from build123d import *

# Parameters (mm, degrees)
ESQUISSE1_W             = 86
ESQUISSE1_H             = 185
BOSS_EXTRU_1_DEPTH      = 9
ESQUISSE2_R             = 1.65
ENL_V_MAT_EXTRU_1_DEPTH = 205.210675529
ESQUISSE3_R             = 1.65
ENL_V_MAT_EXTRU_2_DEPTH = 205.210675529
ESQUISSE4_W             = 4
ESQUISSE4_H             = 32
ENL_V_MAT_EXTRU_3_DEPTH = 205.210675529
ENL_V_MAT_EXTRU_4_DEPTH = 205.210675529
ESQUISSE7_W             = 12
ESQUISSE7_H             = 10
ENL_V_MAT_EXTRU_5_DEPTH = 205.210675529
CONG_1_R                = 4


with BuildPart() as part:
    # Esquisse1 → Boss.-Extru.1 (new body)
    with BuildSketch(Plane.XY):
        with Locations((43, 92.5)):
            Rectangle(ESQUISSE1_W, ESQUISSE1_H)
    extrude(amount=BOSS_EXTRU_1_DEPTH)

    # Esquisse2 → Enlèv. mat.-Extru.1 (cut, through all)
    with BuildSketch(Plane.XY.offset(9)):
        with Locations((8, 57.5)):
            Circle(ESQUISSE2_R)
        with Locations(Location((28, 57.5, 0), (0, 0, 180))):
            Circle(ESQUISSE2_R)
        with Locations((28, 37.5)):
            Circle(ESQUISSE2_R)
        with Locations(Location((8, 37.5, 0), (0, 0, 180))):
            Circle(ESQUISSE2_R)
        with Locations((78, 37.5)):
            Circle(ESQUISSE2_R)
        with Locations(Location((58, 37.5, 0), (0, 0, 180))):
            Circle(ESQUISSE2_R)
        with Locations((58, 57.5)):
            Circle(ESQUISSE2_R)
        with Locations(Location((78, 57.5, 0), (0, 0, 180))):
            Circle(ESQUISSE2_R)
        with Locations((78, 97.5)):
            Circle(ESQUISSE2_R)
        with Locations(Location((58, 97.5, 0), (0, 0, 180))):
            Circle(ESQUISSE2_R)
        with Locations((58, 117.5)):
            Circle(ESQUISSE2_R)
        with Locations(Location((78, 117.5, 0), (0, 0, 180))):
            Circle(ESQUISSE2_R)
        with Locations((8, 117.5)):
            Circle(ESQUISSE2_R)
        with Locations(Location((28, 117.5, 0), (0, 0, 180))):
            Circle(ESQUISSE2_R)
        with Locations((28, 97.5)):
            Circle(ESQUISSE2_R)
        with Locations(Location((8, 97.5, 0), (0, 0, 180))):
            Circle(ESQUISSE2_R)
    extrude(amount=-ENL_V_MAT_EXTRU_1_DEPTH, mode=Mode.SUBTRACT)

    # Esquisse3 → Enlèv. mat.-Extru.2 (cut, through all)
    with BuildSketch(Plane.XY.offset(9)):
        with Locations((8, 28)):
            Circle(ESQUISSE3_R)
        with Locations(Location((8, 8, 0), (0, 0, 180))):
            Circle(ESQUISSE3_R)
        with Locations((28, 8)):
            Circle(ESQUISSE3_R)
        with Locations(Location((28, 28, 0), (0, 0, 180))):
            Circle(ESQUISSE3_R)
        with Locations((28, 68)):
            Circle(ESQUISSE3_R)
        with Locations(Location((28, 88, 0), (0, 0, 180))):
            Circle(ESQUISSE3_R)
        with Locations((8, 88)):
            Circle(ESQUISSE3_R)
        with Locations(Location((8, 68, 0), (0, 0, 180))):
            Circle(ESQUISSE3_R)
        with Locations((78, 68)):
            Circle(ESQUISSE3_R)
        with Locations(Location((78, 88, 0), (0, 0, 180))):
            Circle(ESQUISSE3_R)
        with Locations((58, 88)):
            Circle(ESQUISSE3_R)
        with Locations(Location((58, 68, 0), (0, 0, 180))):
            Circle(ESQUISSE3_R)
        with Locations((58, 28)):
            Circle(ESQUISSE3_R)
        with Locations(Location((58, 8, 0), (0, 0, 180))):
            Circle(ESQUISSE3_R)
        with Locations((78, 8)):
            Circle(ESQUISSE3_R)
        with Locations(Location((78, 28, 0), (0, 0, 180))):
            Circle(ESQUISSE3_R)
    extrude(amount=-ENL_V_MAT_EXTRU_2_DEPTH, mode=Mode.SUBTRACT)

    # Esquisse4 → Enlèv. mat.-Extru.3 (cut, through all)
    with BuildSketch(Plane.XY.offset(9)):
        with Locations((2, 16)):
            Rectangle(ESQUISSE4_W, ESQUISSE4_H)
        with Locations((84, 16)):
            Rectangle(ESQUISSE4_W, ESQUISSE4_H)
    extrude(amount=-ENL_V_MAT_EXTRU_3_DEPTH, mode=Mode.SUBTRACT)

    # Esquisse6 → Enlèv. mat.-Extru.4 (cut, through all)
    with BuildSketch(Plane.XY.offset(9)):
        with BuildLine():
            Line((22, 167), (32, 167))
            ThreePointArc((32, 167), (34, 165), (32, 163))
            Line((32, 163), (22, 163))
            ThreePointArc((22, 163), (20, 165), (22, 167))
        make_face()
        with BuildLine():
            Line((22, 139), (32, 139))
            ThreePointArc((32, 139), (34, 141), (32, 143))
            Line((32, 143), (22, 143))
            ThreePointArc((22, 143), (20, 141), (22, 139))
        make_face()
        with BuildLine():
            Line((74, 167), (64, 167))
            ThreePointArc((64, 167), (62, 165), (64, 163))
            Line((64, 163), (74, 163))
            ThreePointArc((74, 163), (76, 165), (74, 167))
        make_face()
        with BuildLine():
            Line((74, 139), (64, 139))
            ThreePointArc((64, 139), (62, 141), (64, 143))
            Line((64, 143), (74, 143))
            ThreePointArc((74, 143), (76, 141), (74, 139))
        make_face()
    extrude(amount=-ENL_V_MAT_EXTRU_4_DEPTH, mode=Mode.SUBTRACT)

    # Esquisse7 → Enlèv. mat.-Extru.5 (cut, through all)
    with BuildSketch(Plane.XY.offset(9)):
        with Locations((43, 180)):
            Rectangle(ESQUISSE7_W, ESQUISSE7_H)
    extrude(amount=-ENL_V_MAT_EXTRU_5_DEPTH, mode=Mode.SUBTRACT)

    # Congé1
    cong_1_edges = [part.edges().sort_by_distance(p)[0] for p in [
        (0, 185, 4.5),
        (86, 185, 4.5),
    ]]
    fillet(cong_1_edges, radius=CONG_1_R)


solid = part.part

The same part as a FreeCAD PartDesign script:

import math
import FreeCAD as App
import Part
import Sketcher
Q = App.Units.Quantity


def edges_at(feature, points):
    """Names of the edges that pass closest to the given points."""
    edges = feature.Shape.Edges
    near = lambda p: min(range(len(edges)), key=lambda i: edges[i].distToShape(Part.Vertex(*p))[0])
    return sorted({f"Edge{near(p) + 1}" for p in points})


def add_polygon(sketch, points):
    """Adds a closed chain of lines whose ends are joined by coincident constraints."""
    first, n = sketch.GeometryCount, len(points)
    for a, b in zip(points, points[1:] + points[:1]):
        sketch.addGeometry(Part.LineSegment(App.Vector(*a, 0), App.Vector(*b, 0)), False)
    for i in range(n):
        sketch.addConstraint(Sketcher.Constraint("Coincident", first + i, 2, first + (i + 1) % n, 1))

doc = App.newDocument("Part")
body = doc.addObject("PartDesign::Body", "Body")

# Sketch on XY plane
sketch1 = body.newObject("Sketcher::SketchObject", "Sketch")
sketch1.AttachmentSupport = (doc.getObject("XY_Plane"), [""])
sketch1.MapMode = "FlatFace"
add_polygon(sketch1, [(0, 185), (0, 0), (86, 0), (86, 185)])  # lines 0-3
sketch1.addConstraint([
    Sketcher.Constraint("Vertical", 0),
    Sketcher.Constraint("Horizontal", 1),
    Sketcher.Constraint("Vertical", 2),
    Sketcher.Constraint("Horizontal", 3),
    Sketcher.Constraint("Coincident", 0, 2, -1, 1),
    Sketcher.Constraint("DistanceX", 1, 1, 1, 2, Q("86 mm")),
    Sketcher.Constraint("DistanceY", 0, 2, 0, 1, Q("185 mm")),
])
pad1 = body.newObject("PartDesign::Pad", "Pad")
pad1.Profile = sketch1
pad1.Length = 9

# Sketch on XY plane
sketch2 = body.newObject("Sketcher::SketchObject", "Sketch001")
sketch2.AttachmentSupport = (doc.getObject("XY_Plane"), [""])
sketch2.MapMode = "FlatFace"
sketch2.AttachmentOffset = App.Placement(App.Vector(0, 0, 9), App.Rotation())
sketch2.addGeometry([
    Part.Circle(App.Vector(8, 57.5, 0), App.Vector(0, 0, 1), 1.6),  # 0
    Part.Circle(App.Vector(28, 57.5, 0), App.Vector(0, 0, 1), 1.6),  # 1
    Part.Circle(App.Vector(28, 37.5, 0), App.Vector(0, 0, 1), 1.6),  # 2
    Part.Circle(App.Vector(8, 37.5, 0), App.Vector(0, 0, 1), 1.6),  # 3
    Part.Circle(App.Vector(78, 37.5, 0), App.Vector(0, 0, 1), 1.6),  # 4
    Part.Circle(App.Vector(58, 37.5, 0), App.Vector(0, 0, 1), 1.6),  # 5
    Part.Circle(App.Vector(58, 57.5, 0), App.Vector(0, 0, 1), 1.6),  # 6
    Part.Circle(App.Vector(78, 57.5, 0), App.Vector(0, 0, 1), 1.6),  # 7
    Part.Circle(App.Vector(78, 97.5, 0), App.Vector(0, 0, 1), 1.6),  # 8
    Part.Circle(App.Vector(58, 97.5, 0), App.Vector(0, 0, 1), 1.6),  # 9
    Part.Circle(App.Vector(58, 117.5, 0), App.Vector(0, 0, 1), 1.6),  # 10
    Part.Circle(App.Vector(78, 117.5, 0), App.Vector(0, 0, 1), 1.6),  # 11
    Part.Circle(App.Vector(8, 117.5, 0), App.Vector(0, 0, 1), 1.6),  # 12
    Part.Circle(App.Vector(28, 117.5, 0), App.Vector(0, 0, 1), 1.6),  # 13
    Part.Circle(App.Vector(28, 97.5, 0), App.Vector(0, 0, 1), 1.6),  # 14
    Part.Circle(App.Vector(8, 97.5, 0), App.Vector(0, 0, 1), 1.6),  # 15
], False)
sketch2.addConstraint([
    Sketcher.Constraint("Equal", 0, 1),
    Sketcher.Constraint("Equal", 1, 2),
    Sketcher.Constraint("Equal", 2, 3),
    Sketcher.Constraint("Equal", 3, 4),
    Sketcher.Constraint("Equal", 4, 5),
    Sketcher.Constraint("Equal", 5, 6),
    Sketcher.Constraint("Equal", 6, 7),
    Sketcher.Constraint("Equal", 7, 8),
    Sketcher.Constraint("Equal", 8, 9),
    Sketcher.Constraint("Equal", 9, 10),
    Sketcher.Constraint("Equal", 10, 11),
    Sketcher.Constraint("Equal", 11, 12),
    Sketcher.Constraint("Equal", 12, 13),
    Sketcher.Constraint("Equal", 13, 14),
    Sketcher.Constraint("Equal", 14, 15),
    Sketcher.Constraint("Horizontal", 0, 3, 1, 3),
    Sketcher.Constraint("Horizontal", 2, 3, 3, 3),
    Sketcher.Constraint("Horizontal", 3, 3, 4, 3),
    Sketcher.Constraint("Horizontal", 4, 3, 5, 3),
    Sketcher.Constraint("Horizontal", 1, 3, 6, 3),
    Sketcher.Constraint("Horizontal", 6, 3, 7, 3),
    Sketcher.Constraint("Horizontal", 8, 3, 9, 3),
    Sketcher.Constraint("Horizontal", 10, 3, 11, 3),
    Sketcher.Constraint("Horizontal", 11, 3, 12, 3),
    Sketcher.Constraint("Horizontal", 12, 3, 13, 3),
    Sketcher.Constraint("Horizontal", 9, 3, 14, 3),
    Sketcher.Constraint("Horizontal", 14, 3, 15, 3),
    Sketcher.Constraint("Vertical", 1, 3, 2, 3),
    Sketcher.Constraint("Vertical", 0, 3, 3, 3),
    Sketcher.Constraint("Vertical", 5, 3, 6, 3),
    Sketcher.Constraint("Vertical", 4, 3, 7, 3),
    Sketcher.Constraint("Vertical", 7, 3, 8, 3),
    Sketcher.Constraint("Vertical", 6, 3, 9, 3),
    Sketcher.Constraint("Vertical", 9, 3, 10, 3),
    Sketcher.Constraint("Vertical", 8, 3, 11, 3),
    Sketcher.Constraint("Vertical", 3, 3, 12, 3),
    Sketcher.Constraint("Vertical", 2, 3, 13, 3),
    Sketcher.Constraint("Vertical", 13, 3, 14, 3),
    Sketcher.Constraint("Vertical", 12, 3, 15, 3),
    Sketcher.Constraint("Diameter", 0, Q("3.3 mm")),
    Sketcher.Constraint("DistanceX", -1, 1, 0, 3, Q("8 mm")),
    Sketcher.Constraint("DistanceX", -1, 1, 1, 3, Q("28 mm")),
    Sketcher.Constraint("DistanceX", -1, 1, 4, 3, Q("78 mm")),
    Sketcher.Constraint("DistanceX", -1, 1, 5, 3, Q("58 mm")),
    Sketcher.Constraint("DistanceY", 2, 3, 1, 3, Q("20 mm")),
    Sketcher.Constraint("DistanceY", 7, 3, 8, 3, Q("40 mm")),
    Sketcher.Constraint("DistanceY", 9, 3, 10, 3, Q("20 mm")),
    Sketcher.Constraint("DistanceY", -1, 1, 0, 3, Q("57.5 mm")),
])
pocket1 = body.newObject("PartDesign::Pocket", "Pocket")
pocket1.Profile = sketch2
pocket1.Type = "ThroughAll"

# Sketch on XY plane
sketch3 = body.newObject("Sketcher::SketchObject", "Sketch002")
sketch3.AttachmentSupport = (doc.getObject("XY_Plane"), [""])
sketch3.MapMode = "FlatFace"
sketch3.AttachmentOffset = App.Placement(App.Vector(0, 0, 9), App.Rotation())
sketch3.addGeometry([
    Part.Circle(App.Vector(8, 28, 0), App.Vector(0, 0, 1), 1.6),  # 0
    Part.Circle(App.Vector(8, 8, 0), App.Vector(0, 0, 1), 1.6),  # 1
    Part.Circle(App.Vector(28, 8, 0), App.Vector(0, 0, 1), 1.6),  # 2
    Part.Circle(App.Vector(28, 28, 0), App.Vector(0, 0, 1), 1.6),  # 3
    Part.Circle(App.Vector(28, 68, 0), App.Vector(0, 0, 1), 1.6),  # 4
    Part.Circle(App.Vector(28, 88, 0), App.Vector(0, 0, 1), 1.6),  # 5
    Part.Circle(App.Vector(8, 88, 0), App.Vector(0, 0, 1), 1.6),  # 6
    Part.Circle(App.Vector(8, 68, 0), App.Vector(0, 0, 1), 1.6),  # 7
    Part.Circle(App.Vector(78, 68, 0), App.Vector(0, 0, 1), 1.6),  # 8
    Part.Circle(App.Vector(78, 88, 0), App.Vector(0, 0, 1), 1.6),  # 9
    Part.Circle(App.Vector(58, 88, 0), App.Vector(0, 0, 1), 1.6),  # 10
    Part.Circle(App.Vector(58, 68, 0), App.Vector(0, 0, 1), 1.6),  # 11
    Part.Circle(App.Vector(58, 28, 0), App.Vector(0, 0, 1), 1.6),  # 12
    Part.Circle(App.Vector(58, 8, 0), App.Vector(0, 0, 1), 1.6),  # 13
    Part.Circle(App.Vector(78, 8, 0), App.Vector(0, 0, 1), 1.6),  # 14
    Part.Circle(App.Vector(78, 28, 0), App.Vector(0, 0, 1), 1.6),  # 15
], False)
sketch3.addConstraint([
    Sketcher.Constraint("Equal", 0, 1),
    Sketcher.Constraint("Equal", 1, 2),
    Sketcher.Constraint("Equal", 2, 3),
    Sketcher.Constraint("Equal", 3, 4),
    Sketcher.Constraint("Equal", 4, 5),
    Sketcher.Constraint("Equal", 5, 6),
    Sketcher.Constraint("Equal", 6, 7),
    Sketcher.Constraint("Equal", 7, 8),
    Sketcher.Constraint("Equal", 8, 9),
    Sketcher.Constraint("Equal", 9, 10),
    Sketcher.Constraint("Equal", 10, 11),
    Sketcher.Constraint("Equal", 11, 12),
    Sketcher.Constraint("Equal", 12, 13),
    Sketcher.Constraint("Equal", 13, 14),
    Sketcher.Constraint("Equal", 14, 15),
    Sketcher.Constraint("Horizontal", 1, 3, 2, 3),
    Sketcher.Constraint("Horizontal", 0, 3, 3, 3),
    Sketcher.Constraint("Horizontal", 5, 3, 6, 3),
    Sketcher.Constraint("Horizontal", 4, 3, 7, 3),
    Sketcher.Constraint("Horizontal", 7, 3, 8, 3),
    Sketcher.Constraint("Horizontal", 6, 3, 9, 3),
    Sketcher.Constraint("Horizontal", 9, 3, 10, 3),
    Sketcher.Constraint("Horizontal", 8, 3, 11, 3),
    Sketcher.Constraint("Horizontal", 3, 3, 12, 3),
    Sketcher.Constraint("Horizontal", 2, 3, 13, 3),
    Sketcher.Constraint("Horizontal", 13, 3, 14, 3),
    Sketcher.Constraint("Horizontal", 12, 3, 15, 3),
    Sketcher.Constraint("Vertical", 0, 3, 1, 3),
    Sketcher.Constraint("Vertical", 2, 3, 3, 3),
    Sketcher.Constraint("Vertical", 3, 3, 4, 3),
    Sketcher.Constraint("Vertical", 4, 3, 5, 3),
    Sketcher.Constraint("Vertical", 1, 3, 6, 3),
    Sketcher.Constraint("Vertical", 6, 3, 7, 3),
    Sketcher.Constraint("Vertical", 8, 3, 9, 3),
    Sketcher.Constraint("Vertical", 10, 3, 11, 3),
    Sketcher.Constraint("Vertical", 11, 3, 12, 3),
    Sketcher.Constraint("Vertical", 12, 3, 13, 3),
    Sketcher.Constraint("Vertical", 9, 3, 14, 3),
    Sketcher.Constraint("Vertical", 14, 3, 15, 3),
    Sketcher.Constraint("Diameter", 0, Q("3.3 mm")),
    Sketcher.Constraint("DistanceX", -1, 1, 0, 3, Q("8 mm")),
    Sketcher.Constraint("DistanceY", -1, 1, 0, 3, Q("28 mm")),
    Sketcher.Constraint("DistanceY", -1, 1, 1, 3, Q("8 mm")),
    Sketcher.Constraint("DistanceX", -1, 1, 2, 3, Q("28 mm")),
    Sketcher.Constraint("DistanceY", -1, 1, 4, 3, Q("68 mm")),
    Sketcher.Constraint("DistanceY", -1, 1, 5, 3, Q("88 mm")),
    Sketcher.Constraint("DistanceX", -1, 1, 8, 3, Q("78 mm")),
    Sketcher.Constraint("DistanceX", -1, 1, 10, 3, Q("58 mm")),
])
pocket2 = body.newObject("PartDesign::Pocket", "Pocket001")
pocket2.Profile = sketch3
pocket2.Type = "ThroughAll"

# Sketch on XY plane
sketch4 = body.newObject("Sketcher::SketchObject", "Sketch003")
sketch4.AttachmentSupport = (doc.getObject("XY_Plane"), [""])
sketch4.MapMode = "FlatFace"
sketch4.AttachmentOffset = App.Placement(App.Vector(0, 0, 9), App.Rotation())
add_polygon(sketch4, [(0, 32), (0, 0), (4, 0), (4, 32)])  # lines 0-3
add_polygon(sketch4, [(82, 32), (82, 0), (86, 0), (86, 32)])  # lines 4-7
sketch4.addConstraint([
    Sketcher.Constraint("Vertical", 0),
    Sketcher.Constraint("Horizontal", 1),
    Sketcher.Constraint("Vertical", 2),
    Sketcher.Constraint("Horizontal", 3),
    Sketcher.Constraint("Vertical", 4),
    Sketcher.Constraint("Horizontal", 5),
    Sketcher.Constraint("Vertical", 6),
    Sketcher.Constraint("Horizontal", 7),
    Sketcher.Constraint("Coincident", 0, 2, -1, 1),
    Sketcher.Constraint("PointOnObject", 4, 2, -1),
    Sketcher.Constraint("Horizontal", 3, 2, 6, 2),
    Sketcher.Constraint("Equal", 3, 5),
    Sketcher.Constraint("DistanceX", 1, 1, 1, 2, Q("4 mm")),
    Sketcher.Constraint("DistanceY", 0, 2, 0, 1, Q("32 mm")),
    Sketcher.Constraint("DistanceX", -1, 1, 4, 2, Q("82 mm")),
])
pocket3 = body.newObject("PartDesign::Pocket", "Pocket002")
pocket3.Profile = sketch4
pocket3.Type = "ThroughAll"

# Sketch on XY plane
sketch5 = body.newObject("Sketcher::SketchObject", "Sketch004")
sketch5.AttachmentSupport = (doc.getObject("XY_Plane"), [""])
sketch5.MapMode = "FlatFace"
sketch5.AttachmentOffset = App.Placement(App.Vector(0, 0, 9), App.Rotation())
sketch5.addGeometry([
    Part.LineSegment(App.Vector(32, 167, 0), App.Vector(22, 167, 0)),  # 0
    Part.ArcOfCircle(Part.Circle(App.Vector(22, 165, 0), App.Vector(0, 0, 1), 2), math.radians(90), math.radians(270)),  # 1
    Part.LineSegment(App.Vector(22, 163, 0), App.Vector(32, 163, 0)),  # 2
    Part.ArcOfCircle(Part.Circle(App.Vector(32, 165, 0), App.Vector(0, 0, 1), 2), math.radians(-90), math.radians(90)),  # 3
    Part.LineSegment(App.Vector(22, 139, 0), App.Vector(32, 139, 0)),  # 4
    Part.ArcOfCircle(Part.Circle(App.Vector(32, 141, 0), App.Vector(0, 0, 1), 2), math.radians(-90), math.radians(90)),  # 5
    Part.LineSegment(App.Vector(32, 143, 0), App.Vector(22, 143, 0)),  # 6
    Part.ArcOfCircle(Part.Circle(App.Vector(22, 141, 0), App.Vector(0, 0, 1), 2), math.radians(90), math.radians(270)),  # 7
    Part.LineSegment(App.Vector(74, 167, 0), App.Vector(64, 167, 0)),  # 8
    Part.ArcOfCircle(Part.Circle(App.Vector(64, 165, 0), App.Vector(0, 0, 1), 2), math.radians(90), math.radians(270)),  # 9
    Part.LineSegment(App.Vector(64, 163, 0), App.Vector(74, 163, 0)),  # 10
    Part.ArcOfCircle(Part.Circle(App.Vector(74, 165, 0), App.Vector(0, 0, 1), 2), math.radians(-90), math.radians(90)),  # 11
    Part.LineSegment(App.Vector(64, 139, 0), App.Vector(74, 139, 0)),  # 12
    Part.ArcOfCircle(Part.Circle(App.Vector(74, 141, 0), App.Vector(0, 0, 1), 2), math.radians(-90), math.radians(90)),  # 13
    Part.LineSegment(App.Vector(74, 143, 0), App.Vector(64, 143, 0)),  # 14
    Part.ArcOfCircle(Part.Circle(App.Vector(64, 141, 0), App.Vector(0, 0, 1), 2), math.radians(90), math.radians(270)),  # 15
], False)
sketch5.addConstraint([
    Sketcher.Constraint("Tangent", 0, 2, 1, 1),
    Sketcher.Constraint("Tangent", 1, 2, 2, 1),
    Sketcher.Constraint("Tangent", 2, 2, 3, 1),
    Sketcher.Constraint("Tangent", 3, 2, 0, 1),
    Sketcher.Constraint("Tangent", 4, 2, 5, 1),
    Sketcher.Constraint("Tangent", 5, 2, 6, 1),
    Sketcher.Constraint("Tangent", 6, 2, 7, 1),
    Sketcher.Constraint("Tangent", 7, 2, 4, 1),
    Sketcher.Constraint("Tangent", 8, 2, 9, 1),
    Sketcher.Constraint("Tangent", 9, 2, 10, 1),
    Sketcher.Constraint("Tangent", 10, 2, 11, 1),
    Sketcher.Constraint("Tangent", 11, 2, 8, 1),
    Sketcher.Constraint("Tangent", 12, 2, 13, 1),
    Sketcher.Constraint("Tangent", 13, 2, 14, 1),
    Sketcher.Constraint("Tangent", 14, 2, 15, 1),
    Sketcher.Constraint("Tangent", 15, 2, 12, 1),
    Sketcher.Constraint("Horizontal", 0),
    Sketcher.Constraint("Horizontal", 2),
    Sketcher.Constraint("Horizontal", 4),
    Sketcher.Constraint("Horizontal", 6),
    Sketcher.Constraint("Horizontal", 8),
    Sketcher.Constraint("Horizontal", 10),
    Sketcher.Constraint("Horizontal", 12),
    Sketcher.Constraint("Horizontal", 14),
    Sketcher.Constraint("Equal", 3, 5),
    Sketcher.Constraint("Equal", 7, 9),
    Sketcher.Constraint("Equal", 11, 13),
    Sketcher.Constraint("Horizontal", 3, 3, 9, 3),
    Sketcher.Constraint("Horizontal", 7, 3, 13, 3),
    Sketcher.Constraint("Vertical", 3, 3, 5, 3),
    Sketcher.Constraint("Vertical", 1, 3, 7, 3),
    Sketcher.Constraint("Vertical", 11, 3, 13, 3),
    Sketcher.Constraint("Vertical", 9, 3, 15, 3),
    Sketcher.Constraint("Equal", 6, 8),
    Sketcher.Constraint("Radius", 1, Q("2 mm")),
    Sketcher.Constraint("DistanceX", 0, 2, 0, 1, Q("10 mm")),
    Sketcher.Constraint("DistanceX", -1, 1, 1, 3, Q("22 mm")),
    Sketcher.Constraint("DistanceY", -1, 1, 1, 3, Q("165 mm")),
    Sketcher.Constraint("DistanceY", -1, 1, 5, 3, Q("141 mm")),
    Sketcher.Constraint("DistanceX", -1, 1, 9, 3, Q("64 mm")),
])
pocket4 = body.newObject("PartDesign::Pocket", "Pocket003")
pocket4.Profile = sketch5
pocket4.Type = "ThroughAll"

# Sketch on XY plane
sketch6 = body.newObject("Sketcher::SketchObject", "Sketch005")
sketch6.AttachmentSupport = (doc.getObject("XY_Plane"), [""])
sketch6.MapMode = "FlatFace"
sketch6.AttachmentOffset = App.Placement(App.Vector(0, 0, 9), App.Rotation())
add_polygon(sketch6, [(37, 185), (37, 175), (49, 175), (49, 185)])  # lines 0-3
sketch6.addConstraint([
    Sketcher.Constraint("Vertical", 0),
    Sketcher.Constraint("Horizontal", 1),
    Sketcher.Constraint("Vertical", 2),
    Sketcher.Constraint("Horizontal", 3),
    Sketcher.Constraint("DistanceX", 1, 1, 1, 2, Q("12 mm")),
    Sketcher.Constraint("DistanceY", 0, 2, 0, 1, Q("10 mm")),
    Sketcher.Constraint("DistanceX", -1, 1, 0, 2, Q("37 mm")),
    Sketcher.Constraint("DistanceY", -1, 1, 0, 2, Q("175 mm")),
])
pocket5 = body.newObject("PartDesign::Pocket", "Pocket004")
pocket5.Profile = sketch6
pocket5.Type = "ThroughAll"
doc.recompute()

fillet = body.newObject("PartDesign::Fillet", "Fillet")
fillet.Base = (pocket5, edges_at(pocket5, [(0, 185, 4.5), (86, 185, 4.5)]))
fillet.Radius = 4

doc.recompute()
